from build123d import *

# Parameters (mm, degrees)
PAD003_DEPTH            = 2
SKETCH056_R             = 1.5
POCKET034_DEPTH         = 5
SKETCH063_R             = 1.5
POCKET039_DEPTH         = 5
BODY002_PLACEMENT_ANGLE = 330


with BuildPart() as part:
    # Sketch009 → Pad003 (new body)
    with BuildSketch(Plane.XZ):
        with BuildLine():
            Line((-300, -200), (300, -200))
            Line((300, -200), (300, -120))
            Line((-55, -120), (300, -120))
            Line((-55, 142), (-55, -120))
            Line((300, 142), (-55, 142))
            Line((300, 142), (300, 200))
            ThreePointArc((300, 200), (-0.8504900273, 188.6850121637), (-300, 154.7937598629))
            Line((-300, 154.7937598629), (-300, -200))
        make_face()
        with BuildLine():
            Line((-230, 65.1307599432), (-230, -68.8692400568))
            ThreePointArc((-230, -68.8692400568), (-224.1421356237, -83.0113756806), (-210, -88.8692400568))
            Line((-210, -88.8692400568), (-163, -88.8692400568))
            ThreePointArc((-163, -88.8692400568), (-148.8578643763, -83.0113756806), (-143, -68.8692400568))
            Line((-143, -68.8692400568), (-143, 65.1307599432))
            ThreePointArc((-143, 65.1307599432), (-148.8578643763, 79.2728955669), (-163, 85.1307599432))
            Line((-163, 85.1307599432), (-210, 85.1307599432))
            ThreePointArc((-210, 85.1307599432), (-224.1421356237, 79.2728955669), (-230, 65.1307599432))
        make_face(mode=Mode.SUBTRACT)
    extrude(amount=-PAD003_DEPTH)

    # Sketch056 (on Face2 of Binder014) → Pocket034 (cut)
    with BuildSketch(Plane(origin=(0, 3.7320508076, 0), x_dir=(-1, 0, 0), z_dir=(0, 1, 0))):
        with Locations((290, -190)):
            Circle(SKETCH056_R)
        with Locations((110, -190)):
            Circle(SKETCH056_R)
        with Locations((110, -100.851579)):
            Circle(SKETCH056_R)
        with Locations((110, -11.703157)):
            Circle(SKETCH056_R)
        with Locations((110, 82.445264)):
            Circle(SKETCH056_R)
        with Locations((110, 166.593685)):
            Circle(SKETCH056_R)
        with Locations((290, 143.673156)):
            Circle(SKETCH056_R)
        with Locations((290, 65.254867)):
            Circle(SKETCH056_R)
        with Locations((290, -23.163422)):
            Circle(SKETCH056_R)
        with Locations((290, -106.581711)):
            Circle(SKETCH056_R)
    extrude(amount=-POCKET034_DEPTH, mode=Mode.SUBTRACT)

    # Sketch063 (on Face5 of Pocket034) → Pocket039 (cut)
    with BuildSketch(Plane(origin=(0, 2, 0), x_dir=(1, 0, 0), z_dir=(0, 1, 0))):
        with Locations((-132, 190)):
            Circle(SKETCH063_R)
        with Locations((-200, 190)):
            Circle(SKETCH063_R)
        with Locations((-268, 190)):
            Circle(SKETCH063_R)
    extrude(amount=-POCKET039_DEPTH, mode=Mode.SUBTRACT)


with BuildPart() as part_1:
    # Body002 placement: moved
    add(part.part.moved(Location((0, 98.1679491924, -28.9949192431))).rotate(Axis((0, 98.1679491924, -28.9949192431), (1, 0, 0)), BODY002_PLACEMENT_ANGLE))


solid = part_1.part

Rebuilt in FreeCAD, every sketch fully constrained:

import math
import FreeCAD as App
import Part
import Sketcher
from FreeCAD import Vector
Q = App.Units.Quantity

doc = App.newDocument("Part")
body = doc.addObject("PartDesign::Body", "Body")

# Sketch on XZ plane
sketch1 = body.newObject("Sketcher::SketchObject", "Sketch")
sketch1.AttachmentSupport = (doc.getObject("XZ_Plane"), [""])
sketch1.MapMode = "FlatFace"
sketch1.addGeometry(Part.LineSegment(Vector(-300, -200, 0), Vector(300, -200, 0)), False)
sketch1.addGeometry(Part.LineSegment(Vector(300, -200, 0), Vector(300, -120, 0)), False)
sketch1.addGeometry(Part.LineSegment(Vector(300, -120, 0), Vector(-55, -120, 0)), False)
sketch1.addGeometry(Part.LineSegment(Vector(-55, -120, 0), Vector(-55, 142, 0)), False)
sketch1.addGeometry(Part.LineSegment(Vector(-55, 142, 0), Vector(300, 142, 0)), False)
sketch1.addGeometry(Part.LineSegment(Vector(300, 142, 0), Vector(300, 200, 0)), False)
sketch1.addGeometry(Part.ArcOfCircle(Part.Circle(Vector(300, -3803, 0), Vector(0, 0, 1), 4003), math.radians(90), math.radians(98.62)), False)
sketch1.addGeometry(Part.LineSegment(Vector(-300, 155, 0), Vector(-300, -200, 0)), False)
sketch1.addGeometry(Part.LineSegment(Vector(-230, -69, 0), Vector(-230, 65, 0)), False)
sketch1.addGeometry(Part.ArcOfCircle(Part.Circle(Vector(-210, 65, 0), Vector(0, 0, 1), 20), math.radians(90), math.radians(180)), False)
sketch1.addGeometry(Part.LineSegment(Vector(-210, 85, 0), Vector(-163, 85, 0)), False)
sketch1.addGeometry(Part.ArcOfCircle(Part.Circle(Vector(-163, 65, 0), Vector(0, 0, 1), 20), math.radians(0), math.radians(90)), False)
sketch1.addGeometry(Part.LineSegment(Vector(-143, 65, 0), Vector(-143, -69, 0)), False)
sketch1.addGeometry(Part.ArcOfCircle(Part.Circle(Vector(-163, -69, 0), Vector(0, 0, 1), 20), math.radians(-90), math.radians(0)), False)
sketch1.addGeometry(Part.LineSegment(Vector(-163, -89, 0), Vector(-210, -89, 0)), False)
sketch1.addGeometry(Part.ArcOfCircle(Part.Circle(Vector(-210, -69, 0), Vector(0, 0, 1), 20), math.radians(180), math.radians(270)), False)
sketch1.addConstraint(Sketcher.Constraint("Coincident", 0, 2, 1, 1))
sketch1.addConstraint(Sketcher.Constraint("Coincident", 1, 2, 2, 1))
sketch1.addConstraint(Sketcher.Constraint("Coincident", 2, 2, 3, 1))
sketch1.addConstraint(Sketcher.Constraint("Coincident", 3, 2, 4, 1))
sketch1.addConstraint(Sketcher.Constraint("Coincident", 4, 2, 5, 1))
sketch1.addConstraint(Sketcher.Constraint("Coincident", 5, 2, 6, 1))
sketch1.addConstraint(Sketcher.Constraint("Coincident", 6, 2, 7, 1))
sketch1.addConstraint(Sketcher.Constraint("Coincident", 7, 2, 0, 1))
sketch1.addConstraint(Sketcher.Constraint("Tangent", 8, 2, 9, 2))
sketch1.addConstraint(Sketcher.Constraint("Tangent", 9, 1, 10, 1))
sketch1.addConstraint(Sketcher.Constraint("Tangent", 10, 2, 11, 2))
sketch1.addConstraint(Sketcher.Constraint("Tangent", 11, 1, 12, 1))
sketch1.addConstraint(Sketcher.Constraint("Tangent", 12, 2, 13, 2))
sketch1.addConstraint(Sketcher.Constraint("Tangent", 13, 1, 14, 1))
sketch1.addConstraint(Sketcher.Constraint("Tangent", 14, 2, 15, 2))
sketch1.addConstraint(Sketcher.Constraint("Tangent", 15, 1, 8, 1))
sketch1.addConstraint(Sketcher.Constraint("Horizontal", 0))
sketch1.addConstraint(Sketcher.Constraint("Vertical", 1))
sketch1.addConstraint(Sketcher.Constraint("Horizontal", 2))
sketch1.addConstraint(Sketcher.Constraint("Vertical", 3))
sketch1.addConstraint(Sketcher.Constraint("Horizontal", 4))
sketch1.addConstraint(Sketcher.Constraint("Vertical", 5))
sketch1.addConstraint(Sketcher.Constraint("Vertical", 7))
sketch1.addConstraint(Sketcher.Constraint("Vertical", 8))
sketch1.addConstraint(Sketcher.Constraint("Horizontal", 10))
sketch1.addConstraint(Sketcher.Constraint("Vertical", 12))
sketch1.addConstraint(Sketcher.Constraint("Horizontal", 14))
sketch1.addConstraint(Sketcher.Constraint("Equal", 9, 11))
sketch1.addConstraint(Sketcher.Constraint("Equal", 11, 13))
sketch1.addConstraint(Sketcher.Constraint("Equal", 13, 15))
sketch1.addConstraint(Sketcher.Constraint("Symmetric", 5, 2, 7, 2, -1, 1))
sketch1.addConstraint(Sketcher.Constraint("Vertical", 1, 2, 4, 2))
sketch1.addConstraint(Sketcher.Constraint("Radius", 9, Q("20 mm")))
sketch1.addConstraint(Sketcher.Constraint("DistanceX", 0, 1, 0, 2, Q("600 mm")))
sketch1.addConstraint(Sketcher.Constraint("DistanceX", 2, 2, 2, 1, Q("355 mm")))
sketch1.addConstraint(Sketcher.Constraint("DistanceX", 10, 1, 10, 2, Q("47 mm")))
sketch1.addConstraint(Sketcher.Constraint("DistanceY", 1, 1, 1, 2, Q("80 mm")))
sketch1.addConstraint(Sketcher.Constraint("DistanceY", 3, 1, 3, 2, Q("262 mm")))
sketch1.addConstraint(Sketcher.Constraint("DistanceY", 5, 1, 5, 2, Q("58 mm")))
sketch1.addConstraint(Sketcher.Constraint("DistanceY", 8, 1, 8, 2, Q("134 mm")))
sketch1.addConstraint(Sketcher.Constraint("DistanceX", 9, 3, -1, 1, Q("210 mm")))
sketch1.addConstraint(Sketcher.Constraint("Radius", 6, Q("4003.446728 mm")))
sketch1.addConstraint(Sketcher.Constraint("DistanceY", 7, 2, 7, 1, Q("354.79376 mm")))
sketch1.addConstraint(Sketcher.Constraint("DistanceY", -1, 1, 9, 3, Q("65.13076 mm")))
pad1 = body.newObject("PartDesign::Pad", "Pad")
pad1.Profile = sketch1
pad1.Length = 2
pad1.Reversed = True

# Sketch on XZ plane
sketch2 = body.newObject("Sketcher::SketchObject", "Sketch001")
sketch2.AttachmentSupport = (doc.getObject("XZ_Plane"), [""])
sketch2.MapMode = "FlatFace"
sketch2.AttachmentOffset = App.Placement(Vector(0, 0, -3.732051), App.Rotation())
sketch2.addGeometry(Part.Circle(Vector(-290, -190, 0), Vector(0, 0, 1), 1.5), False)
sketch2.addGeometry(Part.Circle(Vector(-110, -190, 0), Vector(0, 0, 1), 1.5), False)
sketch2.addGeometry(Part.Circle(Vector(-110, -100.9, 0), Vector(0, 0, 1), 1.5), False)
sketch2.addGeometry(Part.Circle(Vector(-110, -11.7, 0), Vector(0, 0, 1), 1.5), False)
sketch2.addGeometry(Part.Circle(Vector(-110, 82.4, 0), Vector(0, 0, 1), 1.5), False)
sketch2.addGeometry(Part.Circle(Vector(-110, 166.6, 0), Vector(0, 0, 1), 1.5), False)
sketch2.addGeometry(Part.Circle(Vector(-290, 143.7, 0), Vector(0, 0, 1), 1.5), False)
sketch2.addGeometry(Part.Circle(Vector(-290, 65.3, 0), Vector(0, 0, 1), 1.5), False)
sketch2.addGeometry(Part.Circle(Vector(-290, -23.2, 0), Vector(0, 0, 1), 1.5), False)
sketch2.addGeometry(Part.Circle(Vector(-290, -106.6, 0), Vector(0, 0, 1), 1.5), False)
sketch2.addConstraint(Sketcher.Constraint("Equal", 0, 1))
sketch2.addConstraint(Sketcher.Constraint("Equal", 1, 2))
sketch2.addConstraint(Sketcher.Constraint("Equal", 2, 3))
sketch2.addConstraint(Sketcher.Constraint("Equal", 3, 4))
sketch2.addConstraint(Sketcher.Constraint("Equal", 4, 5))
sketch2.addConstraint(Sketcher.Constraint("Equal", 5, 6))
sketch2.addConstraint(Sketcher.Constraint("Equal", 6, 7))
sketch2.addConstraint(Sketcher.Constraint("Equal", 7, 8))
sketch2.addConstraint(Sketcher.Constraint("Equal", 8, 9))
sketch2.addConstraint(Sketcher.Constraint("Horizontal", 0, 3, 1, 3))
sketch2.addConstraint(Sketcher.Constraint("Vertical", 1, 3, 2, 3))
sketch2.addConstraint(Sketcher.Constraint("Vertical", 2, 3, 3, 3))
sketch2.addConstraint(Sketcher.Constraint("Vertical", 3, 3, 4, 3))
sketch2.addConstraint(Sketcher.Constraint("Vertical", 4, 3, 5, 3))
sketch2.addConstraint(Sketcher.Constraint("Vertical", 0, 3, 6, 3))
sketch2.addConstraint(Sketcher.Constraint("Vertical", 6, 3, 7, 3))
sketch2.addConstraint(Sketcher.Constraint("Vertical", 7, 3, 8, 3))
sketch2.addConstraint(Sketcher.Constraint("Vertical", 8, 3, 9, 3))
sketch2.addConstraint(Sketcher.Constraint("Diameter", 0, Q("3 mm")))
sketch2.addConstraint(Sketcher.Constraint("DistanceX", 0, 3, -1, 1, Q("290 mm")))
sketch2.addConstraint(Sketcher.Constraint("DistanceY", 0, 3, -1, 1, Q("190 mm")))
sketch2.addConstraint(Sketcher.Constraint("DistanceX", 1, 3, -1, 1, Q("110 mm")))
sketch2.addConstraint(Sketcher.Constraint("DistanceY", 2, 3, -1, 1, Q("100.851579 mm")))
sketch2.addConstraint(Sketcher.Constraint("DistanceY", 9, 3, -1, 1, Q("106.581711 mm")))
sketch2.addConstraint(Sketcher.Constraint("DistanceY", 2, 3, 3, 3, Q("89.148422 mm")))
sketch2.addConstraint(Sketcher.Constraint("DistanceY", 3, 3, 4, 3, Q("94.148421 mm")))
sketch2.addConstraint(Sketcher.Constraint("DistanceY", 4, 3, 5, 3, Q("84.148421 mm")))
sketch2.addConstraint(Sketcher.Constraint("DistanceY", 6, 3, 5, 3, Q("22.920529 mm")))
sketch2.addConstraint(Sketcher.Constraint("DistanceY", 7, 3, 6, 3, Q("78.418289 mm")))
sketch2.addConstraint(Sketcher.Constraint("DistanceY", 8, 3, 7, 3, Q("88.418289 mm")))
pocket1 = body.newObject("PartDesign::Pocket", "Pocket")
pocket1.Profile = sketch2
pocket1.Length = 5
pocket1.Reversed = True

# Sketch on XZ plane
sketch3 = body.newObject("Sketcher::SketchObject", "Sketch002")
sketch3.AttachmentSupport = (doc.getObject("XZ_Plane"), [""])
sketch3.MapMode = "FlatFace"
sketch3.AttachmentOffset = App.Placement(Vector(0, 0, -2), App.Rotation())
sketch3.addGeometry(Part.Circle(Vector(-132, -190, 0), Vector(0, 0, 1), 1.5), False)
sketch3.addGeometry(Part.Circle(Vector(-200, -190, 0), Vector(0, 0, 1), 1.5), False)
sketch3.addGeometry(Part.Circle(Vector(-268, -190, 0), Vector(0, 0, 1), 1.5), False)
sketch3.addConstraint(Sketcher.Constraint("Equal", 0, 1))
sketch3.addConstraint(Sketcher.Constraint("Equal", 1, 2))
sketch3.addConstraint(Sketcher.Constraint("Horizontal", 0, 3, 1, 3))
sketch3.addConstraint(Sketcher.Constraint("Horizontal", 1, 3, 2, 3))
sketch3.addConstraint(Sketcher.Constraint("Diameter", 0, Q("3 mm")))
sketch3.addConstraint(Sketcher.Constraint("DistanceX", 0, 3, -1, 1, Q("132 mm")))
sketch3.addConstraint(Sketcher.Constraint("DistanceY", 0, 3, -1, 1, Q("190 mm")))
sketch3.addConstraint(Sketcher.Constraint("DistanceX", 1, 3, -1, 1, Q("200 mm")))
sketch3.addConstraint(Sketcher.Constraint("DistanceX", 2, 3, -1, 1, Q("268 mm")))
pocket2 = body.newObject("PartDesign::Pocket", "Pocket001")
pocket2.Profile = sketch3
pocket2.Length = 5
pocket2.Reversed = True
body2 = doc.addObject("PartDesign::Body", "Body001")
doc.recompute()

body.Placement = App.Placement(Vector(0, 98.167949, -28.994919), App.Rotation(Vector(1, 0, 0), 330))
boolean = body2.newObject("PartDesign::Boolean", "Boolean")
boolean.Type = "Fuse"
boolean.addObjects([body])

doc.recompute()
